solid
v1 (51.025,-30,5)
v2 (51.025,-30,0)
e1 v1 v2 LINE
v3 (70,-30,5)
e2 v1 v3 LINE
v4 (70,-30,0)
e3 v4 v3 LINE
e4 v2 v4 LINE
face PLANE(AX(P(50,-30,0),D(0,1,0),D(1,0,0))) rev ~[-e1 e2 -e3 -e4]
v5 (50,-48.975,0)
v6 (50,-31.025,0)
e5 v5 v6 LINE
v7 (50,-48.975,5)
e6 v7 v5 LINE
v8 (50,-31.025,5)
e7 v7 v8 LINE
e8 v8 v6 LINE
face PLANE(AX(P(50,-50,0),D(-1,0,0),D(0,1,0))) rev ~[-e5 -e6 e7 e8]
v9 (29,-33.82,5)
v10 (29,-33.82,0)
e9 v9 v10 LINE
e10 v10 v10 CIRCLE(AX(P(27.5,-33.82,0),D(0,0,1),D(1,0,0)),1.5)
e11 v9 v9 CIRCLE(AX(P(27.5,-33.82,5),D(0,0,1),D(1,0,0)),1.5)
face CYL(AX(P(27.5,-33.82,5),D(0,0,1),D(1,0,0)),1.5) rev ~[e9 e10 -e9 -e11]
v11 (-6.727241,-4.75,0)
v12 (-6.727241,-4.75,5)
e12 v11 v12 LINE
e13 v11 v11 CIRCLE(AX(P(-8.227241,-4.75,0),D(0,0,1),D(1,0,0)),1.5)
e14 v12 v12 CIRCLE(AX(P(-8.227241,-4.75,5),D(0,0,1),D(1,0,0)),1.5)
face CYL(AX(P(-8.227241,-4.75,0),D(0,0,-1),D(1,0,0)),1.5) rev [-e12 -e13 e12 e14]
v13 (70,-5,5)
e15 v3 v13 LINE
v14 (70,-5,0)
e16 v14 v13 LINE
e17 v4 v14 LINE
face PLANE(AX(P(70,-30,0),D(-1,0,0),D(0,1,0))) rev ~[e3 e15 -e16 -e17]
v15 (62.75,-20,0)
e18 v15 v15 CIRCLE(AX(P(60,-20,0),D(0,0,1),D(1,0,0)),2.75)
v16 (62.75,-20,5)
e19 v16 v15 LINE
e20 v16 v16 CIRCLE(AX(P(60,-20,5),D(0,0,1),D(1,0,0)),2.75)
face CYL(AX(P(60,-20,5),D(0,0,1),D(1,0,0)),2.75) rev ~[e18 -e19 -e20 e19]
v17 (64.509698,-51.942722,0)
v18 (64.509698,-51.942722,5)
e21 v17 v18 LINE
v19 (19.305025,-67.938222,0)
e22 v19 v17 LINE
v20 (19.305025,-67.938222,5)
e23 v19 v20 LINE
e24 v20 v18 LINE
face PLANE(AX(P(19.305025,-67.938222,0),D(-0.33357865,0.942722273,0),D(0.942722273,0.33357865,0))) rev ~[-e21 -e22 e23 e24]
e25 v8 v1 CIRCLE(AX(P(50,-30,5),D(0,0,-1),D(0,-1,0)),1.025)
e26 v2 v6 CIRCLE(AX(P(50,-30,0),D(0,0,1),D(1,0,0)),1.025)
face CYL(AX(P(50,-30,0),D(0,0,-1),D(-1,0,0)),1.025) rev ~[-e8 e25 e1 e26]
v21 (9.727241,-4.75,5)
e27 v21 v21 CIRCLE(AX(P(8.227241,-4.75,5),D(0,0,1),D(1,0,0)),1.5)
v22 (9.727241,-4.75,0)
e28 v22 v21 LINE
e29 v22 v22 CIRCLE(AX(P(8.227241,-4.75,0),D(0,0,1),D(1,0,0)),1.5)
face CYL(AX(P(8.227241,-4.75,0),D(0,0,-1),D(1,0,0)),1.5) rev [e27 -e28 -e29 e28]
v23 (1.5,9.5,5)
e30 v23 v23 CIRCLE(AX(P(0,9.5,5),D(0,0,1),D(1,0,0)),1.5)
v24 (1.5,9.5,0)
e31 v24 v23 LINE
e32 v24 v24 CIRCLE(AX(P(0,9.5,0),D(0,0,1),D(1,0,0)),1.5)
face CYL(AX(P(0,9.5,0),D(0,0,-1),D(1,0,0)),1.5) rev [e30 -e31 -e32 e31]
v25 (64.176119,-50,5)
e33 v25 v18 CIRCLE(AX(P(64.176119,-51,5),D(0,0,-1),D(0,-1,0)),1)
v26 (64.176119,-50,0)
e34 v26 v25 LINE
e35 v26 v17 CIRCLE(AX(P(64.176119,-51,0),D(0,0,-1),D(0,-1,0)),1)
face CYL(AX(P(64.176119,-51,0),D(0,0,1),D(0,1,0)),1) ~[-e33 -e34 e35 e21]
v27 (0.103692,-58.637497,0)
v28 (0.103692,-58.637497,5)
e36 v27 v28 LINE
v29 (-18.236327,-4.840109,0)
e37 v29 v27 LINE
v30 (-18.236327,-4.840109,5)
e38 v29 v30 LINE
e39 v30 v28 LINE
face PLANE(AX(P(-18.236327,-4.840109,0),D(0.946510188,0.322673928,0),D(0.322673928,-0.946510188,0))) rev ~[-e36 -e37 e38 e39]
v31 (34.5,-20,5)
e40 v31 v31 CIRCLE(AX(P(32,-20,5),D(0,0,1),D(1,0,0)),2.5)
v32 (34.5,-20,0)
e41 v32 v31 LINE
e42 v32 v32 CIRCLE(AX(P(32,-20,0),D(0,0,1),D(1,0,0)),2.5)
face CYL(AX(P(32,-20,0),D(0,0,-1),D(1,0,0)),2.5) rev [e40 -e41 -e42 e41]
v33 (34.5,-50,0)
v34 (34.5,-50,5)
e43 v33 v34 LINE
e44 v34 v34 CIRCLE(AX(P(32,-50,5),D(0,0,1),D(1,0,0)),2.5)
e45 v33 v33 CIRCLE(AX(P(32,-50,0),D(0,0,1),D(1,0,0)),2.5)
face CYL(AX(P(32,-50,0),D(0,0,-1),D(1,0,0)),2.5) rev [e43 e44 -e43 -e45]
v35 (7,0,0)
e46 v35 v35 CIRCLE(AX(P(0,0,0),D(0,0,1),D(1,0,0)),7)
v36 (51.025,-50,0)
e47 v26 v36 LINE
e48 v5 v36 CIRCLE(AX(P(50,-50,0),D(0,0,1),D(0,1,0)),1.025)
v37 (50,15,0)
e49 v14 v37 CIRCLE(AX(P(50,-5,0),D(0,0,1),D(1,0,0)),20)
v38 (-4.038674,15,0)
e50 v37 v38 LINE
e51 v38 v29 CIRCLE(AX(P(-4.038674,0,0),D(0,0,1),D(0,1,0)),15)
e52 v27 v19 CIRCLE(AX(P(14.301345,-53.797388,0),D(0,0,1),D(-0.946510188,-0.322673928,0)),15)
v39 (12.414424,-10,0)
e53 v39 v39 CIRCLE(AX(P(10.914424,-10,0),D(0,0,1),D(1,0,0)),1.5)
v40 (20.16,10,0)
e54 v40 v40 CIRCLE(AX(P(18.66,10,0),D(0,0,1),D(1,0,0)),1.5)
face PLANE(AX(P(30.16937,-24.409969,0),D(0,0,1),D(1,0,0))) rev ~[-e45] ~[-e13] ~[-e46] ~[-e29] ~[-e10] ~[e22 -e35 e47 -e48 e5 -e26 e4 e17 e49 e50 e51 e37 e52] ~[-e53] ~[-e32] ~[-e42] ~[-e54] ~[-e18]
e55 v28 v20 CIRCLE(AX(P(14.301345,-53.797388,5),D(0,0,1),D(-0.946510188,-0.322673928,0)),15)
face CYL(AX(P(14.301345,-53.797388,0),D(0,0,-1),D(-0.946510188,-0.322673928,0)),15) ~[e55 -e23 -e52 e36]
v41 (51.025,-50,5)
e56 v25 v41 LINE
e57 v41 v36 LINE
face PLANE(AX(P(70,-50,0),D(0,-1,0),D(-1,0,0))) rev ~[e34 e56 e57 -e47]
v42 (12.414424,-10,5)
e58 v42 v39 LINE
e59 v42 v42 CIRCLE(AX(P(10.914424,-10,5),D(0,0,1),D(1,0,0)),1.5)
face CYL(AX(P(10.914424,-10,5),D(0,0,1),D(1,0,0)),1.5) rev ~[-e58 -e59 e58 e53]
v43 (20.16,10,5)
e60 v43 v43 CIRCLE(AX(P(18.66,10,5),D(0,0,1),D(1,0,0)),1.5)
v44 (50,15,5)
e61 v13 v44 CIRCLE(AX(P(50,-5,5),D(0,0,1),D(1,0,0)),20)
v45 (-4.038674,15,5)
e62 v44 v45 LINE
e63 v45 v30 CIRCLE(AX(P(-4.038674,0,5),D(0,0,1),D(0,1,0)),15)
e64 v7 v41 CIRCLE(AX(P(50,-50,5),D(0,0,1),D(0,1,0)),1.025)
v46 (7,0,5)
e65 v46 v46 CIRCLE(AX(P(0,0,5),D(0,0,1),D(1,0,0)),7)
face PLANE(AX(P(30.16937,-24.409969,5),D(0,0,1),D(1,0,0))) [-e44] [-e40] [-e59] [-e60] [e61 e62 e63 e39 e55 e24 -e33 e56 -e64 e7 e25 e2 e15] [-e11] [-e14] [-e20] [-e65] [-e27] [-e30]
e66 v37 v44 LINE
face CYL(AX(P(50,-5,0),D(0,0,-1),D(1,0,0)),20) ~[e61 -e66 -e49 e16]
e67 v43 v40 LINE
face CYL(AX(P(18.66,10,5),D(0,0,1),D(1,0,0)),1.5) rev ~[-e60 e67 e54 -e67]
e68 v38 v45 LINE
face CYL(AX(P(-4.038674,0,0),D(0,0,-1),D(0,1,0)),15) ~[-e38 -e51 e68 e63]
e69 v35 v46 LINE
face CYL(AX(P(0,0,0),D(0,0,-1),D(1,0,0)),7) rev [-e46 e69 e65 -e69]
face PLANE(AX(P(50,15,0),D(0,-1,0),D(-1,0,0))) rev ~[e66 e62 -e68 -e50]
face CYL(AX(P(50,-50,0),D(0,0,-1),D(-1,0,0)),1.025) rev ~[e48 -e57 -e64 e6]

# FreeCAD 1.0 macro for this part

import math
import FreeCAD as App
import Part
import Sketcher

V = App.Vector
Q = App.Units.Quantity


def edges_at(feature, points):
    """Names of the edges that pass closest to the given points."""
    edges = feature.Shape.Edges
    near = lambda p: min(range(len(edges)), key=lambda i: edges[i].distToShape(Part.Vertex(*p))[0])
    return sorted({f"Edge{near(p) + 1}" for p in points})

doc = App.newDocument("Part")
body = doc.addObject("PartDesign::Body", "Body")

sketch1 = body.newObject("Sketcher::SketchObject", "Sketch")
sketch1.AttachmentSupport = (doc.getObject("XY_Plane"), [""])
sketch1.MapMode = "FlatFace"
sketch1.addGeometry(Part.LineSegment(V(70, -30, 0), V(70, -5, 0)), False)
sketch1.addGeometry(Part.ArcOfCircle(Part.Circle(V(50, -5, 0), V(0, 0, 1), 20), math.radians(0), math.radians(90)), False)
sketch1.addGeometry(Part.LineSegment(V(50, 15, 0), V(-4, 15, 0)), False)
sketch1.addGeometry(Part.ArcOfCircle(Part.Circle(V(-4, 0, 0), V(0, 0, 1), 15), math.radians(90), math.radians(199)), False)
sketch1.addGeometry(Part.LineSegment(V(-18.2, -4.8, 0), V(0.1, -58.6, 0)), False)
sketch1.addGeometry(Part.ArcOfCircle(Part.Circle(V(14.3, -53.8, 0), V(0, 0, 1), 15), math.radians(-161), math.radians(-71)), False)
sketch1.addGeometry(Part.LineSegment(V(19.3, -67.9, 0), V(70, -50, 0)), False)
sketch1.addGeometry(Part.LineSegment(V(70, -50, 0), V(50, -50, 0)), False)
sketch1.addGeometry(Part.LineSegment(V(50, -50, 0), V(50, -30, 0)), False)
sketch1.addGeometry(Part.LineSegment(V(50, -30, 0), V(70, -30, 0)), False)
sketch1.addGeometry(Part.Circle(V(32, -50, 0), V(0, 0, 1), 2.5), False)
sketch1.addGeometry(Part.Circle(V(-8.2, -4.8, 0), V(0, 0, 1), 1.5), False)
sketch1.addGeometry(Part.Circle(V(0, 0, 0), V(0, 0, 1), 7), False)
sketch1.addGeometry(Part.Circle(V(0, 9.5, 0), V(0, 0, 1), 1.5), False)
sketch1.addGeometry(Part.Circle(V(8.2, -4.8, 0), V(0, 0, 1), 1.5), False)
sketch1.addGeometry(Part.Circle(V(32, -20, 0), V(0, 0, 1), 2.5), False)
sketch1.addConstraint(Sketcher.Constraint("Tangent", 0, 2, 1, 1))
sketch1.addConstraint(Sketcher.Constraint("Tangent", 1, 2, 2, 1))
sketch1.addConstraint(Sketcher.Constraint("Tangent", 2, 2, 3, 1))
sketch1.addConstraint(Sketcher.Constraint("Tangent", 3, 2, 4, 1))
sketch1.addConstraint(Sketcher.Constraint("Tangent", 4, 2, 5, 1))
sketch1.addConstraint(Sketcher.Constraint("Tangent", 5, 2, 6, 1))
sketch1.addConstraint(Sketcher.Constraint("Coincident", 6, 2, 7, 1))
sketch1.addConstraint(Sketcher.Constraint("Coincident", 7, 2, 8, 1))
sketch1.addConstraint(Sketcher.Constraint("Coincident", 8, 2, 9, 1))
sketch1.addConstraint(Sketcher.Constraint("Coincident", 9, 2, 0, 1))
sketch1.addConstraint(Sketcher.Constraint("Vertical", 0))
sketch1.addConstraint(Sketcher.Constraint("Horizontal", 2))
sketch1.addConstraint(Sketcher.Constraint("Horizontal", 7))
sketch1.addConstraint(Sketcher.Constraint("Vertical", 8))
sketch1.addConstraint(Sketcher.Constraint("Horizontal", 9))
sketch1.addConstraint(Sketcher.Constraint("Coincident", 12, 3, -1, 1))
sketch1.addConstraint(Sketcher.Constraint("Equal", 3, 5))
sketch1.addConstraint(Sketcher.Constraint("Equal", 11, 13))
sketch1.addConstraint(Sketcher.Constraint("Equal", 13, 14))
sketch1.addConstraint(Sketcher.Constraint("Equal", 10, 15))
sketch1.addConstraint(Sketcher.Constraint("Symmetric", 11, 3, 14, 3, -2))
sketch1.addConstraint(Sketcher.Constraint("PointOnObject", 3, 3, -1))
sketch1.addConstraint(Sketcher.Constraint("PointOnObject", 13, 3, -2))
sketch1.addConstraint(Sketcher.Constraint("Horizontal", 10, 3, 6, 2))
sketch1.addConstraint(Sketcher.Constraint("Vertical", 10, 3, 15, 3))
sketch1.addConstraint(Sketcher.Constraint("Vertical", 0, 2, 6, 2))
sketch1.addConstraint(Sketcher.Constraint("Vertical", 1, 2, 7, 2))
sketch1.addConstraint(Sketcher.Constraint("Equal", 9, 8))
sketch1.addConstraint(Sketcher.Constraint("Diameter", 10, Q("5 mm")))
sketch1.addConstraint(Sketcher.Constraint("Diameter", 11, Q("3 mm")))
sketch1.addConstraint(Sketcher.Constraint("Diameter", 12, Q("14 mm")))
sketch1.addConstraint(Sketcher.Constraint("Radius", 1, Q("20 mm")))
sketch1.addConstraint(Sketcher.Constraint("Radius", 3, Q("15 mm")))
sketch1.addConstraint(Sketcher.Constraint("DistanceY", 0, 1, 0, 2, Q("25 mm")))
sketch1.addConstraint(Sketcher.Constraint("DistanceX", -1, 1, 1, 3, Q("50 mm")))
sketch1.addConstraint(Sketcher.Constraint("DistanceX", -1, 1, 10, 3, Q("32 mm")))
sketch1.addConstraint(Sketcher.Constraint("DistanceY", 15, 3, -1, 1, Q("20 mm")))
sketch1.addConstraint(Sketcher.Constraint("DistanceY", -1, 1, 13, 3, Q("9.5 mm")))
sketch1.addConstraint(Sketcher.Constraint("DistanceY", 11, 3, -1, 1, Q("4.75 mm")))
sketch1.addConstraint(Sketcher.Constraint("Distance", 4, Q("56.837622 mm")))
sketch1.addConstraint(Sketcher.Constraint("Distance", 6, Q("53.77509 mm")))
sketch1.addConstraint(Sketcher.Constraint("DistanceX", 2, 2, 2, 1, Q("54.038674 mm")))
sketch1.addConstraint(Sketcher.Constraint("DistanceX", 11, 3, -1, 1, Q("8.227241 mm")))
pad1 = body.newObject("PartDesign::Pad", "Pad")
pad1.Profile = sketch1
pad1.Length = 5
doc.recompute()

fillet = body.newObject("PartDesign::Fillet", "Fillet")
fillet.Base = (pad1, edges_at(pad1, [(70, -50, 2.5)]))
fillet.Radius = 1

sketch2 = body.newObject("Sketcher::SketchObject", "Sketch001")
sketch2.AttachmentSupport = (doc.getObject("XY_Plane"), [""])
sketch2.MapMode = "FlatFace"
sketch2.AttachmentOffset = App.Placement(V(0, 0, 5), App.Rotation())
sketch2.addGeometry(Part.Circle(V(27.5, -33.8, 0), V(0, 0, 1), 1.5), False)
sketch2.addGeometry(Part.Circle(V(18.7, 10, 0), V(0, 0, 1), 1.5), False)
sketch2.addGeometry(Part.Circle(V(60, -20, 0), V(0, 0, 1), 2.8), False)
sketch2.addConstraint(Sketcher.Constraint("Equal", 0, 1))
sketch2.addConstraint(Sketcher.Constraint("Diameter", 0, Q("3 mm")))
sketch2.addConstraint(Sketcher.Constraint("Diameter", 2, Q("5.5 mm")))
sketch2.addConstraint(Sketcher.Constraint("DistanceY", -1, 1, 1, 3, Q("10 mm")))
sketch2.addConstraint(Sketcher.Constraint("DistanceX", -1, 1, 2, 3, Q("60 mm")))
sketch2.addConstraint(Sketcher.Constraint("DistanceY", 2, 3, -1, 1, Q("20 mm")))
sketch2.addConstraint(Sketcher.Constraint("DistanceX", -1, 1, 0, 3, Q("27.5 mm")))
sketch2.addConstraint(Sketcher.Constraint("DistanceY", 0, 3, -1, 1, Q("33.82 mm")))
sketch2.addConstraint(Sketcher.Constraint("DistanceX", -1, 1, 1, 3, Q("18.66 mm")))
pocket1 = body.newObject("PartDesign::Pocket", "Pocket")
pocket1.Profile = sketch2
pocket1.Length = 10

sketch3 = body.newObject("Sketcher::SketchObject", "Sketch002")
sketch3.AttachmentSupport = (doc.getObject("XY_Plane"), [""])
sketch3.MapMode = "FlatFace"
sketch3.AttachmentOffset = App.Placement(V(0, 0, 5), App.Rotation())
sketch3.addGeometry(Part.Circle(V(10.9, -10, 0), V(0, 0, 1), 1.5), False)
sketch3.addConstraint(Sketcher.Constraint("Diameter", 0, Q("3 mm")))
sketch3.addConstraint(Sketcher.Constraint("DistanceY", 0, 3, -1, 1, Q("10 mm")))
sketch3.addConstraint(Sketcher.Constraint("DistanceX", -1, 1, 0, 3, Q("10.914424 mm")))
pocket2 = body.newObject("PartDesign::Pocket", "Pocket001")
pocket2.Profile = sketch3
pocket2.Length = 10

sketch4 = body.newObject("Sketcher::SketchObject", "Sketch003")
sketch4.AttachmentSupport = (doc.getObject("XY_Plane"), [""])
sketch4.MapMode = "FlatFace"
sketch4.addGeometry(Part.Circle(V(50, -50, 0), V(0, 0, 1), 1), False)
sketch4.addGeometry(Part.Circle(V(50, -30, 0), V(0, 0, 1), 1), False)
sketch4.addConstraint(Sketcher.Constraint("Equal", 0, 1))
sketch4.addConstraint(Sketcher.Constraint("Vertical", 0, 3, 1, 3))
sketch4.addConstraint(Sketcher.Constraint("Diameter", 0, Q("2.05 mm")))
sketch4.addConstraint(Sketcher.Constraint("DistanceX", -1, 1, 0, 3, Q("50 mm")))
sketch4.addConstraint(Sketcher.Constraint("DistanceY", 0, 3, -1, 1, Q("50 mm")))
sketch4.addConstraint(Sketcher.Constraint("DistanceY", 1, 3, -1, 1, Q("30 mm")))
pocket3 = body.newObject("PartDesign::Pocket", "Pocket002")
pocket3.Profile = sketch4
pocket3.Length = 60
pocket3.Midplane = True

doc.recompute()
